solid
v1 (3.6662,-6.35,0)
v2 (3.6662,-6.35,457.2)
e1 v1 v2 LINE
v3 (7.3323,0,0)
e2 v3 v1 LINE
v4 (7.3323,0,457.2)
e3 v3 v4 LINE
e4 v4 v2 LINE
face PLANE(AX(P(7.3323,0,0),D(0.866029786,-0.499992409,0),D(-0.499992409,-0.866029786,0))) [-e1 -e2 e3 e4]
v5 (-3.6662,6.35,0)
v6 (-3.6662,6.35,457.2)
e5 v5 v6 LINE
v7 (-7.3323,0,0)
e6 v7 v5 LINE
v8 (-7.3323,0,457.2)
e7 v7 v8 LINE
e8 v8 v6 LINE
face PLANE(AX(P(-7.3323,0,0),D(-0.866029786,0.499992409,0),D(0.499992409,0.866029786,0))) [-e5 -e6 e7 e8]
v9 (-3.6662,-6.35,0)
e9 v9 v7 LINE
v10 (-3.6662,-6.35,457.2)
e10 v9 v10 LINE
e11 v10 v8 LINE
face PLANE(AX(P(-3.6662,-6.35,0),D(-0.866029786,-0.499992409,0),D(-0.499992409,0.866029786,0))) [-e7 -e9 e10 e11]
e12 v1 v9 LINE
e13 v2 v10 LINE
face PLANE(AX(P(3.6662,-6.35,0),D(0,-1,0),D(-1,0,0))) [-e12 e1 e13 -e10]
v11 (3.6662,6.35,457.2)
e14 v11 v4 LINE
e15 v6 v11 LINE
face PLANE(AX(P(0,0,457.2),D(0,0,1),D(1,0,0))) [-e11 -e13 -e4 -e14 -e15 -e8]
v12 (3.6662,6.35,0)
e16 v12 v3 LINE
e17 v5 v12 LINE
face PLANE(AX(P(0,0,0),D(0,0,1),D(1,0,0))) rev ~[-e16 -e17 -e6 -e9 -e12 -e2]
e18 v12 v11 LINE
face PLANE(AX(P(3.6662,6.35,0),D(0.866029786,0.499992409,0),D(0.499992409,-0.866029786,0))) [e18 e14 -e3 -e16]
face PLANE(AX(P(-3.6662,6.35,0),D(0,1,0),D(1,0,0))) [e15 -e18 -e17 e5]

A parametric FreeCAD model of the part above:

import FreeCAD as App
import Part
import Sketcher
Q = App.Units.Quantity


def add_polygon(sketch, points):
    """Adds a closed chain of lines whose ends are joined by coincident constraints."""
    first, n = sketch.GeometryCount, len(points)
    for a, b in zip(points, points[1:] + points[:1]):
        sketch.addGeometry(Part.LineSegment(App.Vector(*a, 0), App.Vector(*b, 0)), False)
    for i in range(n):
        sketch.addConstraint(Sketcher.Constraint("Coincident", first + i, 2, first + (i + 1) % n, 1))

doc = App.newDocument("Part")
params = doc.addObject("Spreadsheet::Sheet", "Params")
for row, (alias, value) in enumerate([
    ("pad1_length", "18 in"),
], start=1):
    params.set(f"A{row}", alias)
    params.set(f"B{row}", "=" + value)
    params.setAlias(f"B{row}", alias)

body = doc.addObject("PartDesign::Body", "Body")

# Sketch on XY plane
sketch1 = body.newObject("Sketcher::SketchObject", "Sketch")
sketch1.AttachmentSupport = (doc.getObject("XY_Plane"), [""])
sketch1.MapMode = "FlatFace"
add_polygon(sketch1, [(7.3323, 0), (3.6662, 6.35), (-3.6662, 6.35), (-7.3323, 0), (-3.6662, -6.35), (3.6662, -6.35)])  # lines 0-5
sketch1.addConstraint([
    Sketcher.Constraint("Horizontal", 1),
    Sketcher.Constraint("Horizontal", 4),
    Sketcher.Constraint("Symmetric", 0, 2, 3, 2, -1, 1),
    Sketcher.Constraint("Symmetric", 2, 2, 5, 2, -1, 1),
    Sketcher.Constraint("PointOnObject", 2, 2, -1),
    Sketcher.Constraint("Parallel", 2, 5),
    Sketcher.Constraint("Vertical", 1, 2, 3, 2),
    Sketcher.Constraint("DistanceY", 3, 2, 1, 2, Q("0.5 in")),
    Sketcher.Constraint("Angle", 0, Q("119.9995 deg")),
    Sketcher.Constraint("DistanceX", 2, 2, 0, 2, Q("0.433 in")),
])
pad1 = body.newObject("PartDesign::Pad", "Pad")
pad1.Profile = sketch1
pad1.setExpression("Length", "Params.pad1_length")

doc.recompute()
